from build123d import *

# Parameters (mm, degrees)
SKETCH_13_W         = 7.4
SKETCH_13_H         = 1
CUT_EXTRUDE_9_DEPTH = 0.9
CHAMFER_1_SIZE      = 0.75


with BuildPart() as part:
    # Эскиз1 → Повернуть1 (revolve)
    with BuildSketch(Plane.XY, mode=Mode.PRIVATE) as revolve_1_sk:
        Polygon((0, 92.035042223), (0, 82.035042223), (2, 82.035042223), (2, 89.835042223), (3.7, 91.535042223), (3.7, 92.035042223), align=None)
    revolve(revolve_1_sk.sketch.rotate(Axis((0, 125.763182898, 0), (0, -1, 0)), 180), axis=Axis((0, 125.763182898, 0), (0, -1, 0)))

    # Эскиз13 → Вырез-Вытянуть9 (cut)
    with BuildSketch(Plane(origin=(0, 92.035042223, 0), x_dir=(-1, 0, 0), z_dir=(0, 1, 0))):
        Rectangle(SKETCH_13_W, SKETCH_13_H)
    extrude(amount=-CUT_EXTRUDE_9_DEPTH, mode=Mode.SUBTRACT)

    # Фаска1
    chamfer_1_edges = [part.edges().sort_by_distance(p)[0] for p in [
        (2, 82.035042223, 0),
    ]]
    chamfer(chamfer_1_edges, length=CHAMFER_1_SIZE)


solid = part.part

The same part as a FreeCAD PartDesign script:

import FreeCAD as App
import Part
import Sketcher
from FreeCAD import Vector
Q = App.Units.Quantity


def edges_at(feature, points):
    """Names of the edges that pass closest to the given points."""
    edges = feature.Shape.Edges
    near = lambda p: min(range(len(edges)), key=lambda i: edges[i].distToShape(Part.Vertex(*p))[0])
    return sorted({f"Edge{near(p) + 1}" for p in points})

doc = App.newDocument("Part")
body = doc.addObject("PartDesign::Body", "Body")

# Sketch on XY plane
sketch1 = body.newObject("Sketcher::SketchObject", "Sketch")
sketch1.AttachmentSupport = (doc.getObject("XY_Plane"), [""])
sketch1.MapMode = "FlatFace"
sketch1.addGeometry([
    Part.LineSegment(Vector(0, 92, 0), Vector(0, 82, 0)),  # 0
    Part.LineSegment(Vector(0, 82, 0), Vector(2, 82, 0)),  # 1
    Part.LineSegment(Vector(2, 82, 0), Vector(2, 89.8, 0)),  # 2
    Part.LineSegment(Vector(2, 89.8, 0), Vector(3.7, 91.5, 0)),  # 3
    Part.LineSegment(Vector(3.7, 91.5, 0), Vector(3.7, 92, 0)),  # 4
    Part.LineSegment(Vector(3.7, 92, 0), Vector(0, 92, 0)),  # 5
], False)
sketch1.addConstraint([
    Sketcher.Constraint("Coincident", 0, 2, 1, 1),
    Sketcher.Constraint("Coincident", 1, 2, 2, 1),
    Sketcher.Constraint("Coincident", 2, 2, 3, 1),
    Sketcher.Constraint("Coincident", 3, 2, 4, 1),
    Sketcher.Constraint("Coincident", 4, 2, 5, 1),
    Sketcher.Constraint("Coincident", 5, 2, 0, 1),
    Sketcher.Constraint("Vertical", 0),
    Sketcher.Constraint("Horizontal", 1),
    Sketcher.Constraint("Vertical", 2),
    Sketcher.Constraint("Vertical", 4),
    Sketcher.Constraint("Horizontal", 5),
    Sketcher.Constraint("PointOnObject", 0, 2, -2),
    Sketcher.Constraint("DistanceX", 1, 1, 1, 2, Q("2 mm")),
    Sketcher.Constraint("DistanceY", 0, 2, 0, 1, Q("10 mm")),
    Sketcher.Constraint("Angle", 3, Q("45 deg")),
    Sketcher.Constraint("DistanceX", 5, 2, 5, 1, Q("3.7 mm")),
    Sketcher.Constraint("DistanceY", 2, 1, 2, 2, Q("7.8 mm")),
    Sketcher.Constraint("DistanceY", -1, 1, 0, 2, Q("82.035042 mm")),
])
revolution = body.newObject("PartDesign::Revolution", "Revolution")
revolution.Profile = sketch1
revolution.ReferenceAxis = (sketch1, ["V_Axis"])
revolution.Angle = 360

# Sketch on XZ plane
sketch2 = body.newObject("Sketcher::SketchObject", "Sketch001")
sketch2.AttachmentSupport = (doc.getObject("XZ_Plane"), [""])
sketch2.MapMode = "FlatFace"
sketch2.AttachmentOffset = App.Placement(Vector(0, 0, -92.035042), App.Rotation())
sketch2.addGeometry([
    Part.LineSegment(Vector(3.7, 0.5, 0), Vector(3.7, -0.5, 0)),
    Part.LineSegment(Vector(3.7, -0.5, 0), Vector(-3.7, -0.5, 0)),
    Part.LineSegment(Vector(-3.7, -0.5, 0), Vector(-3.7, 0.5, 0)),
    Part.LineSegment(Vector(-3.7, 0.5, 0), Vector(3.7, 0.5, 0)),
], False)
sketch2.addConstraint([
    Sketcher.Constraint("Coincident", 0, 2, 1, 1),
    Sketcher.Constraint("Coincident", 1, 2, 2, 1),
    Sketcher.Constraint("Coincident", 2, 2, 3, 1),
    Sketcher.Constraint("Coincident", 3, 2, 0, 1),
    Sketcher.Constraint("Vertical", 0),
    Sketcher.Constraint("Horizontal", 1),
    Sketcher.Constraint("Vertical", 2),
    Sketcher.Constraint("Horizontal", 3),
    Sketcher.Constraint("Symmetric", 0, 2, 2, 2, -1, 1),
    Sketcher.Constraint("DistanceY", 0, 2, 0, 1, Q("1 mm")),
    Sketcher.Constraint("DistanceX", 1, 2, 1, 1, Q("7.4 mm")),
])
pocket1 = body.newObject("PartDesign::Pocket", "Pocket")
pocket1.Profile = sketch2
pocket1.Length = 0.9
pocket1.Reversed = True
doc.recompute()

chamfer = body.newObject("PartDesign::Chamfer", "Chamfer")
chamfer.Base = (pocket1, edges_at(pocket1, [(2, 82.035, 0)]))
chamfer.Size = 0.75

doc.recompute()
